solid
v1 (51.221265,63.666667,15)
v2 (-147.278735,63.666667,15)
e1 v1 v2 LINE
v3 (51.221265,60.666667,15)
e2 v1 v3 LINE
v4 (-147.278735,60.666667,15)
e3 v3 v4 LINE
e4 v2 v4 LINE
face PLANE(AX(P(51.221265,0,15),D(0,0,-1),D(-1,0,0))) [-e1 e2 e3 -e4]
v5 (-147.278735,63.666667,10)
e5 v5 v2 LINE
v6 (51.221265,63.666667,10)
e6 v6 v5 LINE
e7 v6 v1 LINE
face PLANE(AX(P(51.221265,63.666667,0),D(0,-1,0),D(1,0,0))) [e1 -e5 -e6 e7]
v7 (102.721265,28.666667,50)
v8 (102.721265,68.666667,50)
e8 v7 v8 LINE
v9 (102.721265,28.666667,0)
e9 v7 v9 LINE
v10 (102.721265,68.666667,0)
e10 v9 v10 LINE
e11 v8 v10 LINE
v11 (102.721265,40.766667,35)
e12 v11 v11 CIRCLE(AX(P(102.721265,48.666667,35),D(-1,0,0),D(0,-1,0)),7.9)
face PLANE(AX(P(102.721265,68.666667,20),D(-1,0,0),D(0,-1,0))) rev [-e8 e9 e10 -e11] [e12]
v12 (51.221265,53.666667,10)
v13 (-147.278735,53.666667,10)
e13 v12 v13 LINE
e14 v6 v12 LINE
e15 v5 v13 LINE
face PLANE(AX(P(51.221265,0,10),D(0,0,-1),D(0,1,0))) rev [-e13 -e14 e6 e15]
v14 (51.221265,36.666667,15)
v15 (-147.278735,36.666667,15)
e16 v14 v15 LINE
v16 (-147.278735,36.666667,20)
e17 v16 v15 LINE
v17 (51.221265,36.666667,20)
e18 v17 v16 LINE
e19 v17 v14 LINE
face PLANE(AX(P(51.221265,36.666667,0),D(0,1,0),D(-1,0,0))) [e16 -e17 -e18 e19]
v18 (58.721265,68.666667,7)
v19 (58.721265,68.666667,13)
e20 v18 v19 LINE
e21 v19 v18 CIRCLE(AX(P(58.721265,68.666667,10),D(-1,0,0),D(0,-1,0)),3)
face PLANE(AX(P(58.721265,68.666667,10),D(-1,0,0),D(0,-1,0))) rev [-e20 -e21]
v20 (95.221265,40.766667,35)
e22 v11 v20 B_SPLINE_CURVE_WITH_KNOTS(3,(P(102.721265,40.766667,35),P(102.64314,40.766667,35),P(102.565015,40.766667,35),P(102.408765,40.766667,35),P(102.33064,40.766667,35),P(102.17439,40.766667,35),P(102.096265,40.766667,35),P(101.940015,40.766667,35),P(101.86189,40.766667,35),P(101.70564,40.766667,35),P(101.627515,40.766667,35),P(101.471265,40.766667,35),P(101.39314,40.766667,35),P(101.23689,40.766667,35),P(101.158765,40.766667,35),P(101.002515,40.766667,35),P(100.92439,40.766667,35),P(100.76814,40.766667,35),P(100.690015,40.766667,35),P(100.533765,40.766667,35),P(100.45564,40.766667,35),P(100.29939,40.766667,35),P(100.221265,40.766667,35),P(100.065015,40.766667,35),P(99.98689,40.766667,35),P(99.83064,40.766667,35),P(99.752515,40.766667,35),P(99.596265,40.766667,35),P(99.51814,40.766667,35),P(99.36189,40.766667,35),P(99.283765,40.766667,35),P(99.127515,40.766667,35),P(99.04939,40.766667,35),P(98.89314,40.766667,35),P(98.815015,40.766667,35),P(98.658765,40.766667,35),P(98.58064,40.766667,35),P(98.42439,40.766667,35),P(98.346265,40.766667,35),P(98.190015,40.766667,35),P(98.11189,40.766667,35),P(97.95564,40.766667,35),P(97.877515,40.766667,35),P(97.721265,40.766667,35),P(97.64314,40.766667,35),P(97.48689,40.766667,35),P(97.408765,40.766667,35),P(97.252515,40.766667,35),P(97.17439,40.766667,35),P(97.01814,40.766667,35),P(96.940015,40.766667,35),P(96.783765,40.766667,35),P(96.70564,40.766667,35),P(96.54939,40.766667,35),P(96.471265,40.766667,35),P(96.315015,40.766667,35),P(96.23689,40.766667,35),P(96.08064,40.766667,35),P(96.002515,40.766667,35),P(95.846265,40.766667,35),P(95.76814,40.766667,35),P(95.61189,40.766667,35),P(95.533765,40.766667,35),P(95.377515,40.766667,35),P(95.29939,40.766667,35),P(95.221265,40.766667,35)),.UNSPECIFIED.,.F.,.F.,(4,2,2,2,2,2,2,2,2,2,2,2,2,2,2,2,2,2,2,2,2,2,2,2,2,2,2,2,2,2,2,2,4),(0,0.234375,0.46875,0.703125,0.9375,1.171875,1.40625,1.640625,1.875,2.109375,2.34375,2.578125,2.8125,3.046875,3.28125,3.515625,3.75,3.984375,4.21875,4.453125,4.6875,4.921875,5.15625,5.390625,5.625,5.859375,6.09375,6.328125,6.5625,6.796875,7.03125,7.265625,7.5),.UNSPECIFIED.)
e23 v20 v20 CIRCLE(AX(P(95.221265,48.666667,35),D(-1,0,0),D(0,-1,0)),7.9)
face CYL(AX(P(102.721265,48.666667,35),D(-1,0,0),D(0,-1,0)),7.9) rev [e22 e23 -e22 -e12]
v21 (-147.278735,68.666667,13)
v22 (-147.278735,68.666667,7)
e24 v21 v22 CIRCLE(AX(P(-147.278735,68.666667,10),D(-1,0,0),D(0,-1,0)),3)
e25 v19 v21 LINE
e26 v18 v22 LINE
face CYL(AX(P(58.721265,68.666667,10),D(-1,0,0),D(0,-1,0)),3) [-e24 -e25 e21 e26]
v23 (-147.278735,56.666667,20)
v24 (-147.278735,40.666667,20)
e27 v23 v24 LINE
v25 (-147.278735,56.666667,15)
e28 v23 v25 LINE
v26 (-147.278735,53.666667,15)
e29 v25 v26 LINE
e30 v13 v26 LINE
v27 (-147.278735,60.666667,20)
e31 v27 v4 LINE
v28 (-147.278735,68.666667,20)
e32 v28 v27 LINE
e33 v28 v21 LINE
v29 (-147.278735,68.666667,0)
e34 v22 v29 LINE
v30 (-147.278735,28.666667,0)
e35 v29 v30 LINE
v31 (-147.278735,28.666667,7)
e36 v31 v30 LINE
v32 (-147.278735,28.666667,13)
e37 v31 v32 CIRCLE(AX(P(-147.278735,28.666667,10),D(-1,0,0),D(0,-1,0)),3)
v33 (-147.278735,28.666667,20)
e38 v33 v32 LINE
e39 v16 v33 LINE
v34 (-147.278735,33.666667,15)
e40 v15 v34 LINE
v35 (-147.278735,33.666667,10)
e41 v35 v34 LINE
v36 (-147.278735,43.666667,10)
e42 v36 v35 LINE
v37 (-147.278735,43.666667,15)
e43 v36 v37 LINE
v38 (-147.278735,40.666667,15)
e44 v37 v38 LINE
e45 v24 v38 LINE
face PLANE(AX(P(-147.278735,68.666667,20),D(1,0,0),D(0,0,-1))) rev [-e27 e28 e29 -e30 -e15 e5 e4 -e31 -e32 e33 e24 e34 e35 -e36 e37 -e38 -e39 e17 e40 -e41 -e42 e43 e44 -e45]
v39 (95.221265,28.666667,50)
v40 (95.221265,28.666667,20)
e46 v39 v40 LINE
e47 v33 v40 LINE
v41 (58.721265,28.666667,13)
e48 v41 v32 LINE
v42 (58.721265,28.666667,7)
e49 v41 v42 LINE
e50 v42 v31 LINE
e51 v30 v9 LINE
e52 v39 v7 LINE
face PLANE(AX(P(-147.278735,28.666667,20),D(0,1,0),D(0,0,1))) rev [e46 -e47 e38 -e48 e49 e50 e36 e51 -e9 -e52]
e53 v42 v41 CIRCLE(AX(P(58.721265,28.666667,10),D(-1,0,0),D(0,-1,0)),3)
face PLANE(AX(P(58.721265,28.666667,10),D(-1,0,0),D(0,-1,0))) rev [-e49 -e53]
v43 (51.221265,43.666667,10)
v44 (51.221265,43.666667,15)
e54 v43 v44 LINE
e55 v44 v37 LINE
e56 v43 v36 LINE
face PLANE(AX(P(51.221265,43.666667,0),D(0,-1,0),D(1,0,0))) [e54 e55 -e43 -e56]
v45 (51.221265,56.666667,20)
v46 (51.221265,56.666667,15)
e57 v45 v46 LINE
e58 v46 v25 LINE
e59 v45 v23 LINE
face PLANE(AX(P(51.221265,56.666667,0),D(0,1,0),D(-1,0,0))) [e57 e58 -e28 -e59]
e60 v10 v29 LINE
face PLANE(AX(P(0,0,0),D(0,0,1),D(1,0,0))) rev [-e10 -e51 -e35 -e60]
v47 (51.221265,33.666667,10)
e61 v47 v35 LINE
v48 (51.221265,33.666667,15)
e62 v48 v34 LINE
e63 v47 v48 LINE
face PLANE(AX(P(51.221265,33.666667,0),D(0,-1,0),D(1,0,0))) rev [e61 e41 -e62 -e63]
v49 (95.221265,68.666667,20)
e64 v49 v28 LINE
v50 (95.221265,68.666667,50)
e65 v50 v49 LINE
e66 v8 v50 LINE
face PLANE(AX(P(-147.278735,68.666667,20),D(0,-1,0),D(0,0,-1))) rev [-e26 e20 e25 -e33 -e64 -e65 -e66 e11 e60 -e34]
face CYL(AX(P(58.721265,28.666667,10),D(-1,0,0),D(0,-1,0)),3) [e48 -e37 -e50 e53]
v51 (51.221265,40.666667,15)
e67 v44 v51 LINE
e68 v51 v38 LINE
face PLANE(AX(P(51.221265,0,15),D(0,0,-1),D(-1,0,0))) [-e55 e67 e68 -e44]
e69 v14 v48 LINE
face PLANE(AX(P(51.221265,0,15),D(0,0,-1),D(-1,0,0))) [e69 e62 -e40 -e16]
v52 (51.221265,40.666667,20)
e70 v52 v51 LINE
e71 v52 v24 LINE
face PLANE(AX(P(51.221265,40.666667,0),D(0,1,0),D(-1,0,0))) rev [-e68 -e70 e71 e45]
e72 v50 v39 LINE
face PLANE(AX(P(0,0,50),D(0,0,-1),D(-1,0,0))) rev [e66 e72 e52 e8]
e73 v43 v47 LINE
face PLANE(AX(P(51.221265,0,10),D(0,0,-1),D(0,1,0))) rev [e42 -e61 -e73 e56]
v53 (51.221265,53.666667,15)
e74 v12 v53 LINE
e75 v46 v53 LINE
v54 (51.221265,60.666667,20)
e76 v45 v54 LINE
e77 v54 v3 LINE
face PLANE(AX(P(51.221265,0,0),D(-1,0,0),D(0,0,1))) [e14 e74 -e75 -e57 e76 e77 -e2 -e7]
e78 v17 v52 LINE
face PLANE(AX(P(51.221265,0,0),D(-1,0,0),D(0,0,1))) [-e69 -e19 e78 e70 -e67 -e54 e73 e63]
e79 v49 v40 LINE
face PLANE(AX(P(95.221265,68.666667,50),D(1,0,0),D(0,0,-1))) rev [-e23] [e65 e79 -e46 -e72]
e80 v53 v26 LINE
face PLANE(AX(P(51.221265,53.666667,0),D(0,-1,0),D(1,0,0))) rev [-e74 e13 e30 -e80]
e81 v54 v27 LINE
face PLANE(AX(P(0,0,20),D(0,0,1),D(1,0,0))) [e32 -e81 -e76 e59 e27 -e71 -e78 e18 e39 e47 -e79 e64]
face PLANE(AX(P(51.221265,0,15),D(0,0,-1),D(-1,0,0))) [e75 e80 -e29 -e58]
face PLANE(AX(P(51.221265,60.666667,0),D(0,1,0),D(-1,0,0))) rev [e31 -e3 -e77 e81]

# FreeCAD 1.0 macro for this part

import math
import FreeCAD as App
import Part
import Sketcher

V = App.Vector

doc = App.newDocument("Part")
params = doc.addObject("Spreadsheet::Sheet", "Params")
for row, (alias, value) in enumerate([
    ("sketch1_width", "250 mm"),
    ("sketch1_height", "40 mm"),
    ("pad1_length", "20 mm"),
    ("sketch2_height", "40 mm"),
    ("sketch2_width", "7.5 mm"),
    ("pad2_length", "30 mm"),
    ("sketch3_radius", "3 mm"),
    ("pad3_length", "206 mm"),
    ("sketch4_width", "4 mm"),
    ("sketch4_width2", "3 mm"),
    ("sketch4_height", "5 mm"),
    ("pocket1_length", "198.5 mm"),
    ("sketch5_diameter", "15.8 mm"),
], start=1):
    params.set(f"A{row}", alias)
    params.set(f"B{row}", "=" + value)
    params.setAlias(f"B{row}", alias)

body = doc.addObject("PartDesign::Body", "Body")

sketch1 = doc.addObject("Sketcher::SketchObject", "Sketch")
body.addObject(sketch1)
sketch1.AttachmentSupport = (doc.XY_Plane, [""])
sketch1.MapMode = "FlatFace"
sketch1.addGeometry([
    Part.LineSegment(V(-147, 69, 0), V(-147, 29, 0)),
    Part.LineSegment(V(-147, 29, 0), V(103, 29, 0)),
    Part.LineSegment(V(103, 29, 0), V(103, 69, 0)),
    Part.LineSegment(V(103, 69, 0), V(-147, 69, 0)),
], False)
sketch1.addConstraint([
    Sketcher.Constraint("Coincident", 0, 2, 1, 1),
    Sketcher.Constraint("Coincident", 1, 2, 2, 1),
    Sketcher.Constraint("Coincident", 2, 2, 3, 1),
    Sketcher.Constraint("Coincident", 3, 2, 0, 1),
    Sketcher.Constraint("Vertical", 0),
    Sketcher.Constraint("Horizontal", 1),
    Sketcher.Constraint("Vertical", 2),
    Sketcher.Constraint("Horizontal", 3),
    Sketcher.Constraint("DistanceX", 1, 1, 1, 2, 250.0),
    Sketcher.Constraint("DistanceY", 0, 2, 0, 1, 40.0),
    Sketcher.Constraint("DistanceX", 0, 2, -1, 1, 147.278735),
    Sketcher.Constraint("DistanceY", -1, 1, 0, 2, 28.666667),
])
sketch1.setExpression("Constraints[8]", "Params.sketch1_width")
sketch1.setExpression("Constraints[9]", "Params.sketch1_height")
pad1 = doc.addObject("PartDesign::Pad", "Pad")
body.addObject(pad1)
pad1.Profile = sketch1
pad1.setExpression("Length", "Params.pad1_length")

sketch2 = doc.addObject("Sketcher::SketchObject", "Sketch001")
body.addObject(sketch2)
sketch2.AttachmentSupport = (doc.XY_Plane, [""])
sketch2.MapMode = "FlatFace"
sketch2.AttachmentOffset = App.Placement(V(0, 0, 20), App.Rotation())
sketch2.addGeometry([
    Part.LineSegment(V(95, 69, 0), V(95, 29, 0)),
    Part.LineSegment(V(95, 29, 0), V(103, 29, 0)),
    Part.LineSegment(V(103, 29, 0), V(103, 69, 0)),
    Part.LineSegment(V(103, 69, 0), V(95, 69, 0)),
], False)
sketch2.addConstraint([
    Sketcher.Constraint("Coincident", 0, 2, 1, 1),
    Sketcher.Constraint("Coincident", 1, 2, 2, 1),
    Sketcher.Constraint("Coincident", 2, 2, 3, 1),
    Sketcher.Constraint("Coincident", 3, 2, 0, 1),
    Sketcher.Constraint("Vertical", 0),
    Sketcher.Constraint("Horizontal", 1),
    Sketcher.Constraint("Vertical", 2),
    Sketcher.Constraint("Horizontal", 3),
    Sketcher.Constraint("DistanceY", 0, 2, 0, 1, 40.0),
    Sketcher.Constraint("DistanceX", 1, 1, 1, 2, 7.5),
    Sketcher.Constraint("DistanceX", -1, 1, 0, 2, 95.221265),
    Sketcher.Constraint("DistanceY", -1, 1, 0, 2, 28.666667),
])
sketch2.setExpression("Constraints[8]", "Params.sketch2_height")
sketch2.setExpression("Constraints[9]", "Params.sketch2_width")
pad2 = doc.addObject("PartDesign::Pad", "Pad001")
body.addObject(pad2)
pad2.Profile = sketch2
pad2.setExpression("Length", "Params.pad2_length")

sketch3 = doc.addObject("Sketcher::SketchObject", "Sketch002")
body.addObject(sketch3)
sketch3.AttachmentSupport = (doc.YZ_Plane, [""])
sketch3.MapMode = "FlatFace"
sketch3.AttachmentOffset = App.Placement(V(0, 0, -147.278735), App.Rotation())
sketch3.addGeometry([
    Part.LineSegment(V(68.7, 7, 0), V(68.7, 13, 0)),
    Part.ArcOfCircle(Part.Circle(V(68.7, 10, 0), V(0, 0, 1), 3), math.radians(-90), math.radians(90)),
    Part.LineSegment(V(28.7, 13, 0), V(28.7, 7, 0)),
    Part.ArcOfCircle(Part.Circle(V(28.7, 10, 0), V(0, 0, 1), 3), math.radians(90), math.radians(270)),
], False)
sketch3.addConstraint([
    Sketcher.Constraint("Coincident", 0, 1, 1, 1),
    Sketcher.Constraint("Coincident", 1, 2, 0, 2),
    Sketcher.Constraint("Coincident", 2, 1, 3, 1),
    Sketcher.Constraint("Coincident", 3, 2, 2, 2),
    Sketcher.Constraint("Vertical", 0),
    Sketcher.Constraint("Vertical", 2),
    Sketcher.Constraint("Equal", 1, 3),
    Sketcher.Constraint("Horizontal", 1, 3, 3, 3),
    Sketcher.Constraint("Vertical", 1, 3, 0, 1),
    Sketcher.Constraint("Vertical", 3, 3, 2, 1),
    Sketcher.Constraint("Radius", 1, 3.0),
    Sketcher.Constraint("DistanceY", -1, 1, 1, 3, 10.0),
    Sketcher.Constraint("DistanceX", 3, 3, 1, 3, 40.0),
    Sketcher.Constraint("DistanceX", -1, 1, 1, 3, 68.666667),
])
sketch3.setExpression("Constraints[10]", "Params.sketch3_radius")
pad3 = doc.addObject("PartDesign::Pad", "Pad002")
body.addObject(pad3)
pad3.Profile = sketch3
pad3.setExpression("Length", "Params.pad3_length")

sketch4 = doc.addObject("Sketcher::SketchObject", "Sketch003")
body.addObject(sketch4)
sketch4.AttachmentSupport = (doc.YZ_Plane, [""])
sketch4.MapMode = "FlatFace"
sketch4.AttachmentOffset = App.Placement(V(0, 0, -147.278735), App.Rotation())
sketch4.addGeometry([
    Part.LineSegment(V(56.7, 20, 0), V(60.7, 20, 0)),
    Part.LineSegment(V(60.7, 20, 0), V(60.7, 15, 0)),
    Part.LineSegment(V(60.7, 15, 0), V(63.7, 15, 0)),
    Part.LineSegment(V(63.7, 15, 0), V(63.7, 10, 0)),
    Part.LineSegment(V(63.7, 10, 0), V(53.7, 10, 0)),
    Part.LineSegment(V(53.7, 10, 0), V(53.7, 15, 0)),
    Part.LineSegment(V(53.7, 15, 0), V(56.7, 15, 0)),
    Part.LineSegment(V(56.7, 15, 0), V(56.7, 20, 0)),
    Part.LineSegment(V(36.7, 20, 0), V(40.7, 20, 0)),
    Part.LineSegment(V(40.7, 20, 0), V(40.7, 15, 0)),
    Part.LineSegment(V(40.7, 15, 0), V(43.7, 15, 0)),
    Part.LineSegment(V(43.7, 15, 0), V(43.7, 10, 0)),
    Part.LineSegment(V(43.7, 10, 0), V(33.7, 10, 0)),
    Part.LineSegment(V(33.7, 10, 0), V(33.7, 15, 0)),
    Part.LineSegment(V(33.7, 15, 0), V(36.7, 15, 0)),
    Part.LineSegment(V(36.7, 15, 0), V(36.7, 20, 0)),
], False)
sketch4.addConstraint([
    Sketcher.Constraint("Coincident", 0, 2, 1, 1),
    Sketcher.Constraint("Coincident", 1, 2, 2, 1),
    Sketcher.Constraint("Coincident", 2, 2, 3, 1),
    Sketcher.Constraint("Coincident", 3, 2, 4, 1),
    Sketcher.Constraint("Coincident", 4, 2, 5, 1),
    Sketcher.Constraint("Coincident", 5, 2, 6, 1),
    Sketcher.Constraint("Coincident", 6, 2, 7, 1),
    Sketcher.Constraint("Coincident", 7, 2, 0, 1),
    Sketcher.Constraint("Coincident", 8, 2, 9, 1),
    Sketcher.Constraint("Coincident", 9, 2, 10, 1),
    Sketcher.Constraint("Coincident", 10, 2, 11, 1),
    Sketcher.Constraint("Coincident", 11, 2, 12, 1),
    Sketcher.Constraint("Coincident", 12, 2, 13, 1),
    Sketcher.Constraint("Coincident", 13, 2, 14, 1),
    Sketcher.Constraint("Coincident", 14, 2, 15, 1),
    Sketcher.Constraint("Coincident", 15, 2, 8, 1),
    Sketcher.Constraint("Horizontal", 0),
    Sketcher.Constraint("Vertical", 1),
    Sketcher.Constraint("Horizontal", 2),
    Sketcher.Constraint("Vertical", 3),
    Sketcher.Constraint("Horizontal", 4),
    Sketcher.Constraint("Vertical", 5),
    Sketcher.Constraint("Horizontal", 6),
    Sketcher.Constraint("Vertical", 7),
    Sketcher.Constraint("Horizontal", 8),
    Sketcher.Constraint("Vertical", 9),
    Sketcher.Constraint("Horizontal", 10),
    Sketcher.Constraint("Vertical", 11),
    Sketcher.Constraint("Horizontal", 12),
    Sketcher.Constraint("Vertical", 13),
    Sketcher.Constraint("Horizontal", 14),
    Sketcher.Constraint("Vertical", 15),
    Sketcher.Constraint("Horizontal", 2, 2, 5, 2),
    Sketcher.Constraint("Horizontal", 7, 2, 8, 2),
    Sketcher.Constraint("Horizontal", 6, 2, 9, 2),
    Sketcher.Constraint("Horizontal", 4, 2, 11, 2),
    Sketcher.Constraint("Horizontal", 10, 2, 13, 2),
    Sketcher.Constraint("Equal", 2, 6),
    Sketcher.Constraint("Equal", 0, 8),
    Sketcher.Constraint("Equal", 6, 10),
    Sketcher.Constraint("Equal", 4, 12),
    Sketcher.Constraint("Equal", 1, 3),
    Sketcher.Constraint("DistanceX", 0, 1, 0, 2, 4.0),
    Sketcher.Constraint("DistanceX", 2, 1, 2, 2, 3.0),
    Sketcher.Constraint("DistanceY", 1, 2, 1, 1, 5.0),
    Sketcher.Constraint("DistanceY", -1, 1, 0, 2, 20.0),
    Sketcher.Constraint("DistanceX", 8, 2, 5, 2, 13.0),
    Sketcher.Constraint("DistanceX", -1, 1, 0, 2, 60.666667),
])
sketch4.setExpression("Constraints[42]", "Params.sketch4_width")
sketch4.setExpression("Constraints[43]", "Params.sketch4_width2")
sketch4.setExpression("Constraints[44]", "Params.sketch4_height")
pocket1 = doc.addObject("PartDesign::Pocket", "Pocket")
body.addObject(pocket1)
pocket1.Profile = sketch4
pocket1.setExpression("Length", "Params.pocket1_length")
pocket1.Reversed = True

sketch5 = doc.addObject("Sketcher::SketchObject", "Sketch004")
body.addObject(sketch5)
sketch5.AttachmentSupport = (doc.YZ_Plane, [""])
sketch5.MapMode = "FlatFace"
sketch5.AttachmentOffset = App.Placement(V(0, 0, 95.221265), App.Rotation())
sketch5.addGeometry(Part.Circle(V(49, 35, 0), V(0, 0, 1), 8), False)
sketch5.addConstraint([
    Sketcher.Constraint("Diameter", 0, 15.8),
    Sketcher.Constraint("DistanceY", -1, 1, 0, 3, 35.0),
    Sketcher.Constraint("DistanceX", -1, 1, 0, 3, 48.666667),
])
sketch5.setExpression("Constraints[0]", "Params.sketch5_diameter")
pocket2 = doc.addObject("PartDesign::Pocket", "Pocket001")
body.addObject(pocket2)
pocket2.Profile = sketch5
pocket2.Type = "ThroughAll"
pocket2.Reversed = True

doc.recompute()
